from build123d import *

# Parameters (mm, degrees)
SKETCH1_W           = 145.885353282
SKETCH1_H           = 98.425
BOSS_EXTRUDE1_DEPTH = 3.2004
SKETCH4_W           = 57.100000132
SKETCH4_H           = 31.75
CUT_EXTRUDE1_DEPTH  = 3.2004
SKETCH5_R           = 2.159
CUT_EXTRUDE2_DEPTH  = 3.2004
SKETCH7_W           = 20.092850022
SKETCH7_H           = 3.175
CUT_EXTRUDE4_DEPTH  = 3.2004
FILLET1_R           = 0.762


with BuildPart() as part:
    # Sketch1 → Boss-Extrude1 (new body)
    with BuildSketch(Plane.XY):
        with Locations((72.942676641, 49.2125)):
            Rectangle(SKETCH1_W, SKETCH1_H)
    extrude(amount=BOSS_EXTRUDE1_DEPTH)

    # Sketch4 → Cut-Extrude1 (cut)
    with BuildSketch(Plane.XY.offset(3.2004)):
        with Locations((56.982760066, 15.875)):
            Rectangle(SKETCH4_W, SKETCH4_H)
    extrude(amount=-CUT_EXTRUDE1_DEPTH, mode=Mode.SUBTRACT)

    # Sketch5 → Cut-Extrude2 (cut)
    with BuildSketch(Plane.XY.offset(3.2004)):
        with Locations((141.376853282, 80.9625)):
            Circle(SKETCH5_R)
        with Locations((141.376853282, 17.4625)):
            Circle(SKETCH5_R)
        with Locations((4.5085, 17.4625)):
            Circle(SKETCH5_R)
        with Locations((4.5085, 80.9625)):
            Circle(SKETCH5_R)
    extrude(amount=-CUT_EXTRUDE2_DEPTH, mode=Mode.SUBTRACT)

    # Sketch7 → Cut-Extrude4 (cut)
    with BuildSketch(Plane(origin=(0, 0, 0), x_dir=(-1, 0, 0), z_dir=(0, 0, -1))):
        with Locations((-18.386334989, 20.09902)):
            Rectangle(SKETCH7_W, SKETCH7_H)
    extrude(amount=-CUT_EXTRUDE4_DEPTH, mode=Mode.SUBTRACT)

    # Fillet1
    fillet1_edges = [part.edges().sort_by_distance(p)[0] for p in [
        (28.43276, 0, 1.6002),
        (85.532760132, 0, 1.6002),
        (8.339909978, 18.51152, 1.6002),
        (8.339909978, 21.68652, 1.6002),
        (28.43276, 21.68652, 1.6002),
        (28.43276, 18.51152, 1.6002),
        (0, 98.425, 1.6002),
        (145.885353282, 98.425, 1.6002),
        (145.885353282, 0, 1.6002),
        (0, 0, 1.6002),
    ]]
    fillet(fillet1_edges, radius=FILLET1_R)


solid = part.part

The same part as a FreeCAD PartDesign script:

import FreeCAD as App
import Part
import Sketcher
from FreeCAD import Vector
Q = App.Units.Quantity


def edges_at(feature, points):
    """Names of the edges that pass closest to the given points."""
    edges = feature.Shape.Edges
    near = lambda p: min(range(len(edges)), key=lambda i: edges[i].distToShape(Part.Vertex(*p))[0])
    return sorted({f"Edge{near(p) + 1}" for p in points})


def add_polygon(sketch, points):
    """Adds a closed chain of lines whose ends are joined by coincident constraints."""
    first, n = sketch.GeometryCount, len(points)
    for a, b in zip(points, points[1:] + points[:1]):
        sketch.addGeometry(Part.LineSegment(App.Vector(*a, 0), App.Vector(*b, 0)), False)
    for i in range(n):
        sketch.addConstraint(Sketcher.Constraint("Coincident", first + i, 2, first + (i + 1) % n, 1))

doc = App.newDocument("Part")
body = doc.addObject("PartDesign::Body", "Body")

# Sketch on XY plane
sketch1 = body.newObject("Sketcher::SketchObject", "Sketch")
sketch1.AttachmentSupport = (doc.getObject("XY_Plane"), [""])
sketch1.MapMode = "FlatFace"
add_polygon(sketch1, [(0, 98), (0, 0), (146, 0), (146, 98)])  # lines 0-3
sketch1.addConstraint([
    Sketcher.Constraint("Vertical", 0),
    Sketcher.Constraint("Horizontal", 1),
    Sketcher.Constraint("Vertical", 2),
    Sketcher.Constraint("Horizontal", 3),
    Sketcher.Constraint("Coincident", 0, 2, -1, 1),
    Sketcher.Constraint("DistanceY", 0, 2, 0, 1, Q("3.875 in")),
    Sketcher.Constraint("DistanceX", 1, 1, 1, 2, 145.885353),
])
pad1 = body.newObject("PartDesign::Pad", "Pad")
pad1.Profile = sketch1
pad1.Length = Q("0.126 in")

# Sketch on XY plane
sketch2 = body.newObject("Sketcher::SketchObject", "Sketch001")
sketch2.AttachmentSupport = (doc.getObject("XY_Plane"), [""])
sketch2.MapMode = "FlatFace"
sketch2.AttachmentOffset = App.Placement(Vector(0, 0, 0.126 * 25.4), App.Rotation())
add_polygon(sketch2, [(28, 32), (28, 0), (86, 0), (86, 32)])  # lines 0-3
sketch2.addConstraint([
    Sketcher.Constraint("Vertical", 0),
    Sketcher.Constraint("Horizontal", 1),
    Sketcher.Constraint("Vertical", 2),
    Sketcher.Constraint("Horizontal", 3),
    Sketcher.Constraint("PointOnObject", 0, 2, -1),
    Sketcher.Constraint("DistanceY", 0, 2, 0, 1, Q("1.25 in")),
    Sketcher.Constraint("DistanceX", 1, 1, 1, 2, 57.1),
    Sketcher.Constraint("DistanceX", -1, 1, 0, 2, Q("1.1194 in")),
])
pocket1 = body.newObject("PartDesign::Pocket", "Pocket")
pocket1.Profile = sketch2
pocket1.Length = Q("0.126 in")

# Sketch on XY plane
sketch3 = body.newObject("Sketcher::SketchObject", "Sketch002")
sketch3.AttachmentSupport = (doc.getObject("XY_Plane"), [""])
sketch3.MapMode = "FlatFace"
sketch3.AttachmentOffset = App.Placement(Vector(0, 0, 0.126 * 25.4), App.Rotation())
sketch3.addGeometry([
    Part.Circle(Vector(141.4, 81, 0), Vector(0, 0, 1), 2.2),
    Part.Circle(Vector(141.4, 17.5, 0), Vector(0, 0, 1), 2.2),
    Part.Circle(Vector(4.5, 17.5, 0), Vector(0, 0, 1), 2.2),
    Part.Circle(Vector(4.5, 81, 0), Vector(0, 0, 1), 2.2),
], False)
sketch3.addConstraint([
    Sketcher.Constraint("Equal", 0, 1),
    Sketcher.Constraint("Equal", 1, 2),
    Sketcher.Constraint("Equal", 2, 3),
    Sketcher.Constraint("Horizontal", 1, 3, 2, 3),
    Sketcher.Constraint("Horizontal", 0, 3, 3, 3),
    Sketcher.Constraint("Vertical", 0, 3, 1, 3),
    Sketcher.Constraint("Vertical", 2, 3, 3, 3),
    Sketcher.Constraint("Diameter", 0, Q("0.17 in")),
    Sketcher.Constraint("DistanceY", 1, 3, 0, 3, Q("2.5 in")),
    Sketcher.Constraint("DistanceY", -1, 1, 0, 3, Q("3.1875 in")),
    Sketcher.Constraint("DistanceX", -1, 1, 2, 3, Q("0.1775 in")),
    Sketcher.Constraint("DistanceX", -1, 1, 0, 3, 141.376853),
])
pocket2 = body.newObject("PartDesign::Pocket", "Pocket001")
pocket2.Profile = sketch3
pocket2.Length = Q("0.126 in")

# Sketch on XY plane
sketch4 = body.newObject("Sketcher::SketchObject", "Sketch003")
sketch4.AttachmentSupport = (doc.getObject("XY_Plane"), [""])
sketch4.MapMode = "FlatFace"
add_polygon(sketch4, [(28.4, 21.7), (28.4, 18.5), (8.3, 18.5), (8.3, 21.7)])  # lines 0-3
sketch4.addConstraint([
    Sketcher.Constraint("Vertical", 0),
    Sketcher.Constraint("Horizontal", 1),
    Sketcher.Constraint("Vertical", 2),
    Sketcher.Constraint("Horizontal", 3),
    Sketcher.Constraint("DistanceY", 0, 2, 0, 1, Q("0.125 in")),
    Sketcher.Constraint("DistanceX", -1, 1, 0, 2, Q("1.1194 in")),
    Sketcher.Constraint("DistanceY", -1, 1, 0, 2, Q("0.7288 in")),
    Sketcher.Constraint("DistanceX", 1, 2, 1, 1, 20.09285),
])
pocket3 = body.newObject("PartDesign::Pocket", "Pocket002")
pocket3.Profile = sketch4
pocket3.Length = Q("0.126 in")
pocket3.Reversed = True
doc.recompute()

fillet = body.newObject("PartDesign::Fillet", "Fillet")
fillet.Base = (pocket3, edges_at(pocket3, [
    (28.433, 0, 1.6),
    (85.533, 0, 1.6),
    (8.34, 18.512, 1.6),
    (8.34, 21.687, 1.6),
    (28.433, 21.687, 1.6),
    (28.433, 18.512, 1.6),
    (0, 98.425, 1.6),
    (145.885, 98.425, 1.6),
    (145.885, 0, 1.6),
    (0, 0, 1.6),
]))
fillet.Radius = Q("0.03 in")

doc.recompute()
